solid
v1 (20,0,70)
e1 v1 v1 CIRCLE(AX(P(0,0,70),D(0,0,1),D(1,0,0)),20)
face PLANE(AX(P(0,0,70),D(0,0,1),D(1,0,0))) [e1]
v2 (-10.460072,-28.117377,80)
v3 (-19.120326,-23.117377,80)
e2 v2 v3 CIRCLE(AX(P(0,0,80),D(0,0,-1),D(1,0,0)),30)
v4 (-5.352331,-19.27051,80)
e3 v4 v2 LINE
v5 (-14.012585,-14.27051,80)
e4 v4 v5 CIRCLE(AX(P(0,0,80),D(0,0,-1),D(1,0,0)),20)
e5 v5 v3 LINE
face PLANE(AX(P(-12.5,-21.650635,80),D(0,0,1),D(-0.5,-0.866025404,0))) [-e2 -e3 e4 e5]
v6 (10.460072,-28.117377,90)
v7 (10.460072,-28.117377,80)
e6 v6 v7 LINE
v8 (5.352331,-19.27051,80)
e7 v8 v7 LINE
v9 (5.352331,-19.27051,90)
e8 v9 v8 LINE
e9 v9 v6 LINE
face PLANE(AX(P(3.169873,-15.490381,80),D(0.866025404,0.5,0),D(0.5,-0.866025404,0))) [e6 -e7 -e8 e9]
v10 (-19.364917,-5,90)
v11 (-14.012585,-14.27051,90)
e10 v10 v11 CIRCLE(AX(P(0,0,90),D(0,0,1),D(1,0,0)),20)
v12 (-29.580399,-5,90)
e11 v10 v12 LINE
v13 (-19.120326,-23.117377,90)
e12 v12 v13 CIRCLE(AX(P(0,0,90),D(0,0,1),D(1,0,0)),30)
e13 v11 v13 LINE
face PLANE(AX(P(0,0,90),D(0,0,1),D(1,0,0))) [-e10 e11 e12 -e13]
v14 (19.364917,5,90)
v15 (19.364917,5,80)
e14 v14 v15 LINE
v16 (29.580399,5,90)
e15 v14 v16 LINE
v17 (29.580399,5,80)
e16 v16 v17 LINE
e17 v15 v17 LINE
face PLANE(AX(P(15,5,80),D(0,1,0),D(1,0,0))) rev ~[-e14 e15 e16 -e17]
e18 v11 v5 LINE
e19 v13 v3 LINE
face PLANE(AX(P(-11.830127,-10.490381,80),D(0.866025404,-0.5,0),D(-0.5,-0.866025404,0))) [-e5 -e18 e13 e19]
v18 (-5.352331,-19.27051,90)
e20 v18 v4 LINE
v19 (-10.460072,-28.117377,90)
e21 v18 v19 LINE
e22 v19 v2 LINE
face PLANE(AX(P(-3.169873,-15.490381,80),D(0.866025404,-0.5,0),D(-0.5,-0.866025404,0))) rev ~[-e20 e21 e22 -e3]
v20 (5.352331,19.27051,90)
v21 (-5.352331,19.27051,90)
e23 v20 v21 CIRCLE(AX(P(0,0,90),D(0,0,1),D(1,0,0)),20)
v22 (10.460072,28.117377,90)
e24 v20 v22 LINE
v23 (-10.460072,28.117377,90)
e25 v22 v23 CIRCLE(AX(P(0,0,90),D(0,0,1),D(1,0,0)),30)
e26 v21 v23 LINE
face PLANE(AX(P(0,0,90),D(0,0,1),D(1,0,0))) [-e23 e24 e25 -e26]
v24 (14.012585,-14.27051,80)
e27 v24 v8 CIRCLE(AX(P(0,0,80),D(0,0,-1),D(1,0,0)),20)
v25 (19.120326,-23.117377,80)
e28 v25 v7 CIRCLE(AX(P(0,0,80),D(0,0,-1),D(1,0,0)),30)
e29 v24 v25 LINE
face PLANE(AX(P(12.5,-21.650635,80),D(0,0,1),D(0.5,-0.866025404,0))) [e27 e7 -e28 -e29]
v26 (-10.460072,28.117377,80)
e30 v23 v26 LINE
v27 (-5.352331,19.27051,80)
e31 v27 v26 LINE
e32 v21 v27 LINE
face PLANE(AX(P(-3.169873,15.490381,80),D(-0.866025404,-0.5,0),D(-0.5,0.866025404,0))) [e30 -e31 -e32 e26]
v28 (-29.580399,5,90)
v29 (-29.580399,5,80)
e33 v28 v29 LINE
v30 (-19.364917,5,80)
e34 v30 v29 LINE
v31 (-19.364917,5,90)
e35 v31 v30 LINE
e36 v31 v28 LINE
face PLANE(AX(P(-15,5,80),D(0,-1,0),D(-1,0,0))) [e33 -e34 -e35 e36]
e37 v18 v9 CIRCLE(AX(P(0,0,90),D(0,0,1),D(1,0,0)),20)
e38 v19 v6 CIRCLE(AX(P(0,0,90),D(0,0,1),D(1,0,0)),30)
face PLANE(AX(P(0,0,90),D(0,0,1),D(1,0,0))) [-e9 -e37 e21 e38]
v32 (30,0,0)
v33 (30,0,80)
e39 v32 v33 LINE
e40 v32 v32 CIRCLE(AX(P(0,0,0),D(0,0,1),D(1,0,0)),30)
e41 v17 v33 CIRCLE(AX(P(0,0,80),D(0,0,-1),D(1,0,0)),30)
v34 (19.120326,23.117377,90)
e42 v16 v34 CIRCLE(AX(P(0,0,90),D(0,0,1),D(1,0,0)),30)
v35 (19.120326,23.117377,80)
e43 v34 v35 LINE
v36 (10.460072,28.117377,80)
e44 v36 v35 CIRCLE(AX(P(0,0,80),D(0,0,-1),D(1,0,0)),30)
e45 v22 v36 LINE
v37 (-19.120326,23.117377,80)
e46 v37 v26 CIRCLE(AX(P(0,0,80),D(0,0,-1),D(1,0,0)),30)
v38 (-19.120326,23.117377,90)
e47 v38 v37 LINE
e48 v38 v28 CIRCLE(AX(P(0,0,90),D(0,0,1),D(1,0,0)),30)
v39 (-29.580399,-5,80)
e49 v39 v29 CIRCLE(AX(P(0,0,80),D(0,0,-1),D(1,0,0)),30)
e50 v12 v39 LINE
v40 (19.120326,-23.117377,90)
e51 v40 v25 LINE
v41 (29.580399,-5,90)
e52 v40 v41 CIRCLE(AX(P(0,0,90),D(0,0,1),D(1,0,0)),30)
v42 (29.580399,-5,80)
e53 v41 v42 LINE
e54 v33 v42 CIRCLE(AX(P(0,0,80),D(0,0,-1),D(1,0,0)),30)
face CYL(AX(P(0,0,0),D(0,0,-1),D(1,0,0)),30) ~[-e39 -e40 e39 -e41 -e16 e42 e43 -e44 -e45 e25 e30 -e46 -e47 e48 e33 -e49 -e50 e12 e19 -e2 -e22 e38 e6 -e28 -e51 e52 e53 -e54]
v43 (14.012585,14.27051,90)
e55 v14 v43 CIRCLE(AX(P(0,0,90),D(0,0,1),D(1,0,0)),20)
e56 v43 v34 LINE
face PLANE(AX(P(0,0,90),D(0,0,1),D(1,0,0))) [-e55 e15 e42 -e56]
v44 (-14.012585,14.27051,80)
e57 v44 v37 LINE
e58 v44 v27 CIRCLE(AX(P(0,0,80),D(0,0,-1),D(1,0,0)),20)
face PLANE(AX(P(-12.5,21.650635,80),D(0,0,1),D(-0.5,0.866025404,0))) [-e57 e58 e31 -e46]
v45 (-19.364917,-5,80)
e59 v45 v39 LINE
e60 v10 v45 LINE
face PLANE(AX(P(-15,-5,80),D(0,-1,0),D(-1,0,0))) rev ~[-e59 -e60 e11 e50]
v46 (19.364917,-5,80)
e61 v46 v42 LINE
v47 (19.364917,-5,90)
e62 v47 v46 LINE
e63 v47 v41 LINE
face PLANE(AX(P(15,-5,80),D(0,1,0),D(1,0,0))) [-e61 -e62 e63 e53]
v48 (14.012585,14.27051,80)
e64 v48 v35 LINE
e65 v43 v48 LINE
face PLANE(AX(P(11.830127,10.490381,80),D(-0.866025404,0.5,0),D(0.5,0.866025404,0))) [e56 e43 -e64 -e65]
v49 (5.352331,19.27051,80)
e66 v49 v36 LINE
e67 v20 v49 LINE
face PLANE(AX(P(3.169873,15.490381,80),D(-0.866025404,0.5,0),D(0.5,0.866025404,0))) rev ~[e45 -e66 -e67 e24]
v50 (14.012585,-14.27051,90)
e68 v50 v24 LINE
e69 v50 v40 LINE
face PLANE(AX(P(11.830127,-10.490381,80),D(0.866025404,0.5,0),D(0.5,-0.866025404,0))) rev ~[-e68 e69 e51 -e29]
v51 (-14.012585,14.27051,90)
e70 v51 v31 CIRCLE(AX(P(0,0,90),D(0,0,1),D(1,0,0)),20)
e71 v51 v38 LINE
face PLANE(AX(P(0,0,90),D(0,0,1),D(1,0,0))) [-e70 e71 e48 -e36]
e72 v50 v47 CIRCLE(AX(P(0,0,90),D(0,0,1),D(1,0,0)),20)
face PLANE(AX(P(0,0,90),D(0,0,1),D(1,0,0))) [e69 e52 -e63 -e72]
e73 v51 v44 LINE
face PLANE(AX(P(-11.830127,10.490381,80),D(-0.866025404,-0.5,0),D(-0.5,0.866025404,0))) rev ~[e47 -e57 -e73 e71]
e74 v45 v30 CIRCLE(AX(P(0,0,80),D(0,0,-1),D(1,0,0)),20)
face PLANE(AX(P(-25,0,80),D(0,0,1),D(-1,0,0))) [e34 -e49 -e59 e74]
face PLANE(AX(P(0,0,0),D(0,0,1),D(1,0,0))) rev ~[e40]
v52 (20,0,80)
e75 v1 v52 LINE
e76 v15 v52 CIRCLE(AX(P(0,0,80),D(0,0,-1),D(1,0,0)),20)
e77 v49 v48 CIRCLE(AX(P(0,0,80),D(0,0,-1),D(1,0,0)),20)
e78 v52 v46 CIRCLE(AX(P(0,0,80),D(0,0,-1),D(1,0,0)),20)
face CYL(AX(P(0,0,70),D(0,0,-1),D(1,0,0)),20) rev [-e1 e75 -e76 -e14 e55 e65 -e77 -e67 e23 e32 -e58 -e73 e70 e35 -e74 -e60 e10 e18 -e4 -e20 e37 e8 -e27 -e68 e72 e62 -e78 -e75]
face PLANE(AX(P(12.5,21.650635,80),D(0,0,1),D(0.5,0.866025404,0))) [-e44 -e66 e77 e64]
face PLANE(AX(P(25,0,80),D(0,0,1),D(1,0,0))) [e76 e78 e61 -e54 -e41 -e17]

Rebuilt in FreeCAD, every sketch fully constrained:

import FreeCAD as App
import Part
import Sketcher

V = App.Vector
Q = App.Units.Quantity


def add_polygon(sketch, points):
    """Adds a closed chain of lines whose ends are joined by coincident constraints."""
    first, n = sketch.GeometryCount, len(points)
    for a, b in zip(points, points[1:] + points[:1]):
        sketch.addGeometry(Part.LineSegment(App.Vector(*a, 0), App.Vector(*b, 0)), False)
    for i in range(n):
        sketch.addConstraint(Sketcher.Constraint("Coincident", first + i, 2, first + (i + 1) % n, 1))

doc = App.newDocument("Part")
body = doc.addObject("PartDesign::Body", "Body")

# Sketch on XY plane
sketch1 = body.newObject("Sketcher::SketchObject", "Sketch")
sketch1.AttachmentSupport = (doc.getObject("XY_Plane"), [""])
sketch1.MapMode = "FlatFace"
sketch1.AttachmentOffset = App.Placement(V(0, 0, 80), App.Rotation())
add_polygon(sketch1, [(15, 5), (15, -5), (35, -5), (35, 5)])  # lines 0-3
sketch1.addConstraint(Sketcher.Constraint("Vertical", 0))
sketch1.addConstraint(Sketcher.Constraint("Horizontal", 1))
sketch1.addConstraint(Sketcher.Constraint("Vertical", 2))
sketch1.addConstraint(Sketcher.Constraint("Horizontal", 3))
sketch1.addConstraint(Sketcher.Constraint("DistanceX", 1, 1, 1, 2, Q("20 mm")))
sketch1.addConstraint(Sketcher.Constraint("DistanceY", 0, 2, 0, 1, Q("10 mm")))
sketch1.addConstraint(Sketcher.Constraint("DistanceX", -1, 1, 0, 2, Q("15 mm")))
sketch1.addConstraint(Sketcher.Constraint("DistanceY", 0, 2, -1, 1, Q("5 mm")))
pad1 = body.newObject("PartDesign::Pad", "Pad")
pad1.Profile = sketch1
pad1.Length = 10
body2 = doc.addObject("PartDesign::Body", "Body001")
body2.AllowCompound = True
doc.recompute()

body2.BaseFeature = body
doc.recompute()

body3 = doc.addObject("PartDesign::Body", "Body002")
body3.BaseFeature = body
body3.Placement = App.Placement(V(0, 0, 0), App.Rotation(V(0, 0, 1), 60))
boolean = body2.newObject("PartDesign::Boolean", "Boolean")
boolean.Type = "Fuse"
boolean.addObjects([body3])
doc.recompute()

body4 = doc.addObject("PartDesign::Body", "Body003")
body4.BaseFeature = body
body4.Placement = App.Placement(V(0, 0, 0), App.Rotation(V(0, 0, 1), 120))
boolean2 = body2.newObject("PartDesign::Boolean", "Boolean001")
boolean2.Type = "Fuse"
boolean2.addObjects([body4])
doc.recompute()

body5 = doc.addObject("PartDesign::Body", "Body004")
body5.BaseFeature = body
body5.Placement = App.Placement(V(0, 0, 0), App.Rotation(V(0, 0, 1), 180))
boolean3 = body2.newObject("PartDesign::Boolean", "Boolean002")
boolean3.Type = "Fuse"
boolean3.addObjects([body5])
doc.recompute()

body6 = doc.addObject("PartDesign::Body", "Body005")
body6.BaseFeature = body
body6.Placement = App.Placement(V(0, 0, 0), App.Rotation(V(0, 0, 1), 240))
boolean4 = body2.newObject("PartDesign::Boolean", "Boolean003")
boolean4.Type = "Fuse"
boolean4.addObjects([body6])
doc.recompute()

body.Placement = App.Placement(V(0, 0, 0), App.Rotation(V(0, 0, 1), 300))
boolean5 = body2.newObject("PartDesign::Boolean", "Boolean004")
boolean5.Type = "Fuse"
boolean5.addObjects([body])
body7 = doc.addObject("PartDesign::Body", "Body006")

# Sketch on XY plane
sketch2 = body7.newObject("Sketcher::SketchObject", "Sketch001")
sketch2.AttachmentSupport = (doc.getObject("XY_Plane006"), [""])
sketch2.MapMode = "FlatFace"
sketch2.AttachmentOffset = App.Placement(V(0, 0, 70), App.Rotation())
sketch2.addGeometry(Part.Circle(V(0, 0, 0), V(0, 0, 1), 20), False)
sketch2.addConstraint(Sketcher.Constraint("Coincident", 0, 3, -1, 1))
sketch2.addConstraint(Sketcher.Constraint("Diameter", 0, Q("40 mm")))
pad2 = body7.newObject("PartDesign::Pad", "Pad001")
pad2.Profile = sketch2
pad2.Length = 20
body8 = doc.addObject("PartDesign::Body", "Body007")

# Sketch on XY plane
sketch3 = body8.newObject("Sketcher::SketchObject", "Sketch002")
sketch3.AttachmentSupport = (doc.getObject("XY_Plane007"), [""])
sketch3.MapMode = "FlatFace"
sketch3.addGeometry(Part.Circle(V(0, 0, 0), V(0, 0, 1), 30), False)
sketch3.addConstraint(Sketcher.Constraint("Coincident", 0, 3, -1, 1))
sketch3.addConstraint(Sketcher.Constraint("Diameter", 0, Q("60 mm")))
pad3 = body8.newObject("PartDesign::Pad", "Pad002")
pad3.Profile = sketch3
pad3.Length = 90
doc.recompute()

boolean6 = body8.newObject("PartDesign::Boolean", "Boolean005")
boolean6.Type = "Cut"
boolean6.addObjects([body7])
doc.recompute()

boolean7 = body8.newObject("PartDesign::Boolean", "Boolean006")
boolean7.Type = "Cut"
boolean7.addObjects([body2])

doc.recompute()
